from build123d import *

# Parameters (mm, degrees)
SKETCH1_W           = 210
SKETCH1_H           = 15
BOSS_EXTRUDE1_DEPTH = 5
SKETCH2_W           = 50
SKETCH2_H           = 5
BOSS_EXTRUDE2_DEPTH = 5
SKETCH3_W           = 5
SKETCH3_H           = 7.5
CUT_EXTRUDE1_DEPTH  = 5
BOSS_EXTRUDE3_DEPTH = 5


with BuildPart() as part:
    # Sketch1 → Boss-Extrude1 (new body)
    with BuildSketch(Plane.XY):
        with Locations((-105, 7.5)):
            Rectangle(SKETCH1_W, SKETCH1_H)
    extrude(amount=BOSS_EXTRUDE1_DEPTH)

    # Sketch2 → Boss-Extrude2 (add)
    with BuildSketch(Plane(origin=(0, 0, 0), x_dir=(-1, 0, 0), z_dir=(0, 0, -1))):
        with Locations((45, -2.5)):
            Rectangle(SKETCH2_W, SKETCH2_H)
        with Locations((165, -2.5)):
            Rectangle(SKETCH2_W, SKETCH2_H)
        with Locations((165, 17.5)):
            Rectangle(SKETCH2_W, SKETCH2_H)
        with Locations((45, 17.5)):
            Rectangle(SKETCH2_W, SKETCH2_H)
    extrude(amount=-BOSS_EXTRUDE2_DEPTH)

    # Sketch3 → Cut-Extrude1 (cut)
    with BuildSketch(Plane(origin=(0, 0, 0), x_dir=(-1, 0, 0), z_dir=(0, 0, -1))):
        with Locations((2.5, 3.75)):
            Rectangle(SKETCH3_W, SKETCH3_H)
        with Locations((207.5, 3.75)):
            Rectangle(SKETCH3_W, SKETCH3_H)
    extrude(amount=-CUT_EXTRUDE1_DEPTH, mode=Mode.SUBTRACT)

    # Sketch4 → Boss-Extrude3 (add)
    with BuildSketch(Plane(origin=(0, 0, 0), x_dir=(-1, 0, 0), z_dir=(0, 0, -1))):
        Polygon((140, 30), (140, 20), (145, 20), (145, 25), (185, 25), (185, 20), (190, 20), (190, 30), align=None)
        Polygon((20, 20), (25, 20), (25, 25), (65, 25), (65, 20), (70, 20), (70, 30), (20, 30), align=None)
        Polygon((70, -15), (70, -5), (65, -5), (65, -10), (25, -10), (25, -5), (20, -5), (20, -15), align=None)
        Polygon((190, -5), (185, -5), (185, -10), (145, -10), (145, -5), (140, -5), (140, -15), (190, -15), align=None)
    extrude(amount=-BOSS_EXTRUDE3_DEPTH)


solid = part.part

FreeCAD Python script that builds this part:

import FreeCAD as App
import Part
import Sketcher

V = App.Vector
Q = App.Units.Quantity

doc = App.newDocument("Part")
body = doc.addObject("PartDesign::Body", "Body")

# Sketch on XY plane
sketch1 = body.newObject("Sketcher::SketchObject", "Sketch")
sketch1.AttachmentSupport = (doc.getObject("XY_Plane"), [""])
sketch1.MapMode = "FlatFace"
sketch1.addGeometry([
    Part.LineSegment(V(-210, 15, 0), V(-210, 0, 0)),
    Part.LineSegment(V(-210, 0, 0), V(0, 0, 0)),
    Part.LineSegment(V(0, 0, 0), V(0, 15, 0)),
    Part.LineSegment(V(0, 15, 0), V(-210, 15, 0)),
], False)
sketch1.addConstraint([
    Sketcher.Constraint("Coincident", 0, 2, 1, 1),
    Sketcher.Constraint("Coincident", 1, 2, 2, 1),
    Sketcher.Constraint("Coincident", 2, 2, 3, 1),
    Sketcher.Constraint("Coincident", 3, 2, 0, 1),
    Sketcher.Constraint("Vertical", 0),
    Sketcher.Constraint("Horizontal", 1),
    Sketcher.Constraint("Vertical", 2),
    Sketcher.Constraint("Horizontal", 3),
    Sketcher.Constraint("Coincident", 1, 2, -1, 1),
    Sketcher.Constraint("DistanceX", 1, 1, 1, 2, Q("210 mm")),
    Sketcher.Constraint("DistanceY", 0, 2, 0, 1, Q("15 mm")),
])
pad1 = body.newObject("PartDesign::Pad", "Pad")
pad1.Profile = sketch1
pad1.Length = 5

# Sketch on XY plane
sketch2 = body.newObject("Sketcher::SketchObject", "Sketch001")
sketch2.AttachmentSupport = (doc.getObject("XY_Plane"), [""])
sketch2.MapMode = "FlatFace"
sketch2.addGeometry([
    Part.LineSegment(V(-20, 0, 0), V(-20, -5, 0)),  # 0
    Part.LineSegment(V(-20, -5, 0), V(-70, -5, 0)),  # 1
    Part.LineSegment(V(-70, -5, 0), V(-70, 0, 0)),  # 2
    Part.LineSegment(V(-70, 0, 0), V(-20, 0, 0)),  # 3
    Part.LineSegment(V(-140, 0, 0), V(-140, -5, 0)),  # 4
    Part.LineSegment(V(-140, -5, 0), V(-190, -5, 0)),  # 5
    Part.LineSegment(V(-190, -5, 0), V(-190, 0, 0)),  # 6
    Part.LineSegment(V(-190, 0, 0), V(-140, 0, 0)),  # 7
    Part.LineSegment(V(-140, 20, 0), V(-140, 15, 0)),  # 8
    Part.LineSegment(V(-140, 15, 0), V(-190, 15, 0)),  # 9
    Part.LineSegment(V(-190, 15, 0), V(-190, 20, 0)),  # 10
    Part.LineSegment(V(-190, 20, 0), V(-140, 20, 0)),  # 11
    Part.LineSegment(V(-20, 20, 0), V(-20, 15, 0)),  # 12
    Part.LineSegment(V(-20, 15, 0), V(-70, 15, 0)),  # 13
    Part.LineSegment(V(-70, 15, 0), V(-70, 20, 0)),  # 14
    Part.LineSegment(V(-70, 20, 0), V(-20, 20, 0)),  # 15
], False)
sketch2.addConstraint([
    Sketcher.Constraint("Coincident", 0, 2, 1, 1),
    Sketcher.Constraint("Coincident", 1, 2, 2, 1),
    Sketcher.Constraint("Coincident", 2, 2, 3, 1),
    Sketcher.Constraint("Coincident", 3, 2, 0, 1),
    Sketcher.Constraint("Coincident", 4, 2, 5, 1),
    Sketcher.Constraint("Coincident", 5, 2, 6, 1),
    Sketcher.Constraint("Coincident", 6, 2, 7, 1),
    Sketcher.Constraint("Coincident", 7, 2, 4, 1),
    Sketcher.Constraint("Coincident", 8, 2, 9, 1),
    Sketcher.Constraint("Coincident", 9, 2, 10, 1),
    Sketcher.Constraint("Coincident", 10, 2, 11, 1),
    Sketcher.Constraint("Coincident", 11, 2, 8, 1),
    Sketcher.Constraint("Coincident", 12, 2, 13, 1),
    Sketcher.Constraint("Coincident", 13, 2, 14, 1),
    Sketcher.Constraint("Coincident", 14, 2, 15, 1),
    Sketcher.Constraint("Coincident", 15, 2, 12, 1),
    Sketcher.Constraint("Vertical", 0),
    Sketcher.Constraint("Horizontal", 1),
    Sketcher.Constraint("Vertical", 2),
    Sketcher.Constraint("Horizontal", 3),
    Sketcher.Constraint("Vertical", 4),
    Sketcher.Constraint("Horizontal", 5),
    Sketcher.Constraint("Vertical", 6),
    Sketcher.Constraint("Horizontal", 7),
    Sketcher.Constraint("Vertical", 8),
    Sketcher.Constraint("Horizontal", 9),
    Sketcher.Constraint("Vertical", 10),
    Sketcher.Constraint("Horizontal", 11),
    Sketcher.Constraint("Vertical", 12),
    Sketcher.Constraint("Horizontal", 13),
    Sketcher.Constraint("Vertical", 14),
    Sketcher.Constraint("Horizontal", 15),
    Sketcher.Constraint("PointOnObject", 2, 2, -1),
    Sketcher.Constraint("PointOnObject", 6, 2, -1),
    Sketcher.Constraint("Horizontal", 1, 2, 4, 2),
    Sketcher.Constraint("Horizontal", 9, 2, 12, 2),
    Sketcher.Constraint("Horizontal", 11, 2, 14, 2),
    Sketcher.Constraint("Vertical", 7, 2, 8, 2),
    Sketcher.Constraint("Vertical", 6, 2, 9, 2),
    Sketcher.Constraint("Vertical", 3, 2, 12, 2),
    Sketcher.Constraint("Vertical", 2, 2, 13, 2),
    Sketcher.Constraint("Equal", 3, 5),
    Sketcher.Constraint("Equal", 6, 8),
    Sketcher.Constraint("DistanceX", 1, 2, 1, 1, Q("50 mm")),
    Sketcher.Constraint("DistanceY", 0, 2, 0, 1, Q("5 mm")),
    Sketcher.Constraint("DistanceX", 0, 2, -1, 1, Q("20 mm")),
    Sketcher.Constraint("DistanceX", 4, 2, -1, 1, Q("140 mm")),
    Sketcher.Constraint("DistanceY", -1, 1, 8, 2, Q("15 mm")),
])
pad2 = body.newObject("PartDesign::Pad", "Pad001")
pad2.Profile = sketch2
pad2.Length = 5

# Sketch on XY plane
sketch3 = body.newObject("Sketcher::SketchObject", "Sketch002")
sketch3.AttachmentSupport = (doc.getObject("XY_Plane"), [""])
sketch3.MapMode = "FlatFace"
sketch3.addGeometry([
    Part.LineSegment(V(0, 8, 0), V(0, 0, 0)),  # 0
    Part.LineSegment(V(0, 0, 0), V(-5, 0, 0)),  # 1
    Part.LineSegment(V(-5, 0, 0), V(-5, 8, 0)),  # 2
    Part.LineSegment(V(-5, 8, 0), V(0, 8, 0)),  # 3
    Part.LineSegment(V(-205, 8, 0), V(-205, 0, 0)),  # 4
    Part.LineSegment(V(-205, 0, 0), V(-210, 0, 0)),  # 5
    Part.LineSegment(V(-210, 0, 0), V(-210, 8, 0)),  # 6
    Part.LineSegment(V(-210, 8, 0), V(-205, 8, 0)),  # 7
], False)
sketch3.addConstraint([
    Sketcher.Constraint("Coincident", 0, 2, 1, 1),
    Sketcher.Constraint("Coincident", 1, 2, 2, 1),
    Sketcher.Constraint("Coincident", 2, 2, 3, 1),
    Sketcher.Constraint("Coincident", 3, 2, 0, 1),
    Sketcher.Constraint("Coincident", 4, 2, 5, 1),
    Sketcher.Constraint("Coincident", 5, 2, 6, 1),
    Sketcher.Constraint("Coincident", 6, 2, 7, 1),
    Sketcher.Constraint("Coincident", 7, 2, 4, 1),
    Sketcher.Constraint("Vertical", 0),
    Sketcher.Constraint("Horizontal", 1),
    Sketcher.Constraint("Vertical", 2),
    Sketcher.Constraint("Horizontal", 3),
    Sketcher.Constraint("Vertical", 4),
    Sketcher.Constraint("Horizontal", 5),
    Sketcher.Constraint("Vertical", 6),
    Sketcher.Constraint("Horizontal", 7),
    Sketcher.Constraint("Coincident", 0, 2, -1, 1),
    Sketcher.Constraint("PointOnObject", 4, 2, -1),
    Sketcher.Constraint("Horizontal", 3, 2, 6, 2),
    Sketcher.Constraint("Equal", 3, 5),
    Sketcher.Constraint("DistanceX", 1, 2, 1, 1, Q("5 mm")),
    Sketcher.Constraint("DistanceY", 0, 2, 0, 1, Q("7.5 mm")),
    Sketcher.Constraint("DistanceX", 4, 2, -1, 1, Q("205 mm")),
])
pocket1 = body.newObject("PartDesign::Pocket", "Pocket")
pocket1.Profile = sketch3
pocket1.Length = 5
pocket1.Reversed = True

# Sketch on XY plane
sketch4 = body.newObject("Sketcher::SketchObject", "Sketch003")
sketch4.AttachmentSupport = (doc.getObject("XY_Plane"), [""])
sketch4.MapMode = "FlatFace"
sketch4.addGeometry([
    Part.LineSegment(V(-140, 30, 0), V(-140, 20, 0)),  # 0
    Part.LineSegment(V(-140, 20, 0), V(-145, 20, 0)),  # 1
    Part.LineSegment(V(-145, 20, 0), V(-145, 25, 0)),  # 2
    Part.LineSegment(V(-145, 25, 0), V(-185, 25, 0)),  # 3
    Part.LineSegment(V(-185, 25, 0), V(-185, 20, 0)),  # 4
    Part.LineSegment(V(-185, 20, 0), V(-190, 20, 0)),  # 5
    Part.LineSegment(V(-190, 20, 0), V(-190, 30, 0)),  # 6
    Part.LineSegment(V(-190, 30, 0), V(-140, 30, 0)),  # 7
    Part.LineSegment(V(-20, 20, 0), V(-25, 20, 0)),  # 8
    Part.LineSegment(V(-25, 20, 0), V(-25, 25, 0)),  # 9
    Part.LineSegment(V(-25, 25, 0), V(-65, 25, 0)),  # 10
    Part.LineSegment(V(-65, 25, 0), V(-65, 20, 0)),  # 11
    Part.LineSegment(V(-65, 20, 0), V(-70, 20, 0)),  # 12
    Part.LineSegment(V(-70, 20, 0), V(-70, 30, 0)),  # 13
    Part.LineSegment(V(-70, 30, 0), V(-20, 30, 0)),  # 14
    Part.LineSegment(V(-20, 30, 0), V(-20, 20, 0)),  # 15
    Part.LineSegment(V(-70, -15, 0), V(-70, -5, 0)),  # 16
    Part.LineSegment(V(-70, -5, 0), V(-65, -5, 0)),  # 17
    Part.LineSegment(V(-65, -5, 0), V(-65, -10, 0)),  # 18
    Part.LineSegment(V(-65, -10, 0), V(-25, -10, 0)),  # 19
    Part.LineSegment(V(-25, -10, 0), V(-25, -5, 0)),  # 20
    Part.LineSegment(V(-25, -5, 0), V(-20, -5, 0)),  # 21
    Part.LineSegment(V(-20, -5, 0), V(-20, -15, 0)),  # 22
    Part.LineSegment(V(-20, -15, 0), V(-70, -15, 0)),  # 23
    Part.LineSegment(V(-190, -5, 0), V(-185, -5, 0)),  # 24
    Part.LineSegment(V(-185, -5, 0), V(-185, -10, 0)),  # 25
    Part.LineSegment(V(-185, -10, 0), V(-145, -10, 0)),  # 26
    Part.LineSegment(V(-145, -10, 0), V(-145, -5, 0)),  # 27
    Part.LineSegment(V(-145, -5, 0), V(-140, -5, 0)),  # 28
    Part.LineSegment(V(-140, -5, 0), V(-140, -15, 0)),  # 29
    Part.LineSegment(V(-140, -15, 0), V(-190, -15, 0)),  # 30
    Part.LineSegment(V(-190, -15, 0), V(-190, -5, 0)),  # 31
], False)
sketch4.addConstraint([
    Sketcher.Constraint("Coincident", 0, 2, 1, 1),
    Sketcher.Constraint("Coincident", 1, 2, 2, 1),
    Sketcher.Constraint("Coincident", 2, 2, 3, 1),
    Sketcher.Constraint("Coincident", 3, 2, 4, 1),
    Sketcher.Constraint("Coincident", 4, 2, 5, 1),
    Sketcher.Constraint("Coincident", 5, 2, 6, 1),
    Sketcher.Constraint("Coincident", 6, 2, 7, 1),
    Sketcher.Constraint("Coincident", 7, 2, 0, 1),
    Sketcher.Constraint("Coincident", 8, 2, 9, 1),
    Sketcher.Constraint("Coincident", 9, 2, 10, 1),
    Sketcher.Constraint("Coincident", 10, 2, 11, 1),
    Sketcher.Constraint("Coincident", 11, 2, 12, 1),
    Sketcher.Constraint("Coincident", 12, 2, 13, 1),
    Sketcher.Constraint("Coincident", 13, 2, 14, 1),
    Sketcher.Constraint("Coincident", 14, 2, 15, 1),
    Sketcher.Constraint("Coincident", 15, 2, 8, 1),
    Sketcher.Constraint("Coincident", 16, 2, 17, 1),
    Sketcher.Constraint("Coincident", 17, 2, 18, 1),
    Sketcher.Constraint("Coincident", 18, 2, 19, 1),
    Sketcher.Constraint("Coincident", 19, 2, 20, 1),
    Sketcher.Constraint("Coincident", 20, 2, 21, 1),
    Sketcher.Constraint("Coincident", 21, 2, 22, 1),
    Sketcher.Constraint("Coincident", 22, 2, 23, 1),
    Sketcher.Constraint("Coincident", 23, 2, 16, 1),
    Sketcher.Constraint("Coincident", 24, 2, 25, 1),
    Sketcher.Constraint("Coincident", 25, 2, 26, 1),
    Sketcher.Constraint("Coincident", 26, 2, 27, 1),
    Sketcher.Constraint("Coincident", 27, 2, 28, 1),
    Sketcher.Constraint("Coincident", 28, 2, 29, 1),
    Sketcher.Constraint("Coincident", 29, 2, 30, 1),
    Sketcher.Constraint("Coincident", 30, 2, 31, 1),
    Sketcher.Constraint("Coincident", 31, 2, 24, 1),
    Sketcher.Constraint("Vertical", 0),
    Sketcher.Constraint("Horizontal", 1),
    Sketcher.Constraint("Vertical", 2),
    Sketcher.Constraint("Horizontal", 3),
    Sketcher.Constraint("Vertical", 4),
    Sketcher.Constraint("Horizontal", 5),
    Sketcher.Constraint("Vertical", 6),
    Sketcher.Constraint("Horizontal", 7),
    Sketcher.Constraint("Horizontal", 8),
    Sketcher.Constraint("Vertical", 9),
    Sketcher.Constraint("Horizontal", 10),
    Sketcher.Constraint("Vertical", 11),
    Sketcher.Constraint("Horizontal", 12),
    Sketcher.Constraint("Vertical", 13),
    Sketcher.Constraint("Horizontal", 14),
    Sketcher.Constraint("Vertical", 15),
    Sketcher.Constraint("Vertical", 16),
    Sketcher.Constraint("Horizontal", 17),
    Sketcher.Constraint("Vertical", 18),
    Sketcher.Constraint("Horizontal", 19),
    Sketcher.Constraint("Vertical", 20),
    Sketcher.Constraint("Horizontal", 21),
    Sketcher.Constraint("Vertical", 22),
    Sketcher.Constraint("Horizontal", 23),
    Sketcher.Constraint("Horizontal", 24),
    Sketcher.Constraint("Vertical", 25),
    Sketcher.Constraint("Horizontal", 26),
    Sketcher.Constraint("Vertical", 27),
    Sketcher.Constraint("Horizontal", 28),
    Sketcher.Constraint("Vertical", 29),
    Sketcher.Constraint("Horizontal", 30),
    Sketcher.Constraint("Vertical", 31),
    Sketcher.Constraint("Horizontal", 1, 2, 4, 2),
    Sketcher.Constraint("Horizontal", 5, 2, 8, 2),
    Sketcher.Constraint("Horizontal", 3, 2, 9, 2),
    Sketcher.Constraint("Horizontal", 8, 2, 11, 2),
    Sketcher.Constraint("Horizontal", 7, 2, 13, 2),
    Sketcher.Constraint("Horizontal", 17, 2, 20, 2),
    Sketcher.Constraint("Horizontal", 21, 2, 24, 2),
    Sketcher.Constraint("Horizontal", 19, 2, 25, 2),
    Sketcher.Constraint("Horizontal", 24, 2, 27, 2),
    Sketcher.Constraint("Horizontal", 23, 2, 29, 2),
    Sketcher.Constraint("Vertical", 13, 2, 16, 2),
    Sketcher.Constraint("Vertical", 11, 2, 17, 2),
    Sketcher.Constraint("Vertical", 9, 2, 19, 2),
    Sketcher.Constraint("Vertical", 15, 2, 21, 2),
    Sketcher.Constraint("Vertical", 4, 2, 24, 2),
    Sketcher.Constraint("Vertical", 2, 2, 26, 2),
    Sketcher.Constraint("Vertical", 7, 2, 28, 2),
    Sketcher.Constraint("Vertical", 6, 2, 30, 2),
    Sketcher.Constraint("Equal", 1, 5),
    Sketcher.Constraint("Equal", 5, 8),
    Sketcher.Constraint("Equal", 3, 10),
    Sketcher.Constraint("Equal", 8, 12),
    Sketcher.Constraint("Equal", 28, 2),
    Sketcher.Constraint("Equal", 15, 16),
    Sketcher.Constraint("Equal", 11, 18),
    Sketcher.Constraint("DistanceX", 1, 2, 1, 1, Q("5 mm")),
    Sketcher.Constraint("DistanceX", 3, 2, 3, 1, Q("40 mm")),
    Sketcher.Constraint("DistanceY", 0, 2, 0, 1, Q("10 mm")),
    Sketcher.Constraint("DistanceX", 0, 2, -1, 1, Q("140 mm")),
    Sketcher.Constraint("DistanceY", -1, 1, 0, 2, Q("20 mm")),
    Sketcher.Constraint("DistanceX", 8, 2, -1, 1, Q("25 mm")),
    Sketcher.Constraint("DistanceY", 16, 2, -1, 1, Q("5 mm")),
])
pad3 = body.newObject("PartDesign::Pad", "Pad002")
pad3.Profile = sketch4
pad3.Length = 5

doc.recompute()
